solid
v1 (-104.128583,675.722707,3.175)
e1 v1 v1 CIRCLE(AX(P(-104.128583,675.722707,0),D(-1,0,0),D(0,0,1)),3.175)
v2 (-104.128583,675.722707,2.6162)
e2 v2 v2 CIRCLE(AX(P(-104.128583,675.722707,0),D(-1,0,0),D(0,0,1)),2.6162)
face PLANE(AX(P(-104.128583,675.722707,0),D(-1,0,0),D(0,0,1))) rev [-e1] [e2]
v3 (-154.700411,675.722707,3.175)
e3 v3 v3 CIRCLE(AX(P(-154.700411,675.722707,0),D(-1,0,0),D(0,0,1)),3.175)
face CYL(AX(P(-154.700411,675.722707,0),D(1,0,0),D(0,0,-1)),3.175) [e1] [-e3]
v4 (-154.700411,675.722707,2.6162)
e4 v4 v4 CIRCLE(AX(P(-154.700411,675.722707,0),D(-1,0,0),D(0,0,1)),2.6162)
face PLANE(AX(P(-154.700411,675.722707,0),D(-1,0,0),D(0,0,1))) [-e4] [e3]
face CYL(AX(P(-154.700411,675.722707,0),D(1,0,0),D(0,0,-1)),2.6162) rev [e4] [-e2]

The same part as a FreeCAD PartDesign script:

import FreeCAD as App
import Part
import Sketcher
from FreeCAD import Vector
Q = App.Units.Quantity

doc = App.newDocument("Part")
body = doc.addObject("PartDesign::Body", "Body")

# Sketch on YZ plane
sketch1 = doc.addObject("Sketcher::SketchObject", "Sketch")
body.addObject(sketch1)
sketch1.AttachmentSupport = (doc.YZ_Plane, [""])
sketch1.MapMode = "FlatFace"
sketch1.AttachmentOffset = App.Placement(Vector(0, 0, -104.128583), App.Rotation())
sketch1.addGeometry([
    Part.Circle(Vector(675.7, 0, 0), Vector(0, 0, 1), 3.2),
    Part.Circle(Vector(675.7, 0, 0), Vector(0, 0, 1), 2.6),
], False)
sketch1.addConstraint([
    Sketcher.Constraint("Coincident", 1, 3, 0, 3),
    Sketcher.Constraint("PointOnObject", 0, 3, -1),
    Sketcher.Constraint("Diameter", 0, Q("0.25 in")),
    Sketcher.Constraint("Diameter", 1, Q("0.206 in")),
    Sketcher.Constraint("DistanceX", -1, 1, 0, 3, Q("675.722707 mm")),
])
pad1 = doc.addObject("PartDesign::Pad", "Pad")
body.addObject(pad1)
pad1.Profile = sketch1
pad1.Length = 50.571828
pad1.Reversed = True

doc.recompute()
